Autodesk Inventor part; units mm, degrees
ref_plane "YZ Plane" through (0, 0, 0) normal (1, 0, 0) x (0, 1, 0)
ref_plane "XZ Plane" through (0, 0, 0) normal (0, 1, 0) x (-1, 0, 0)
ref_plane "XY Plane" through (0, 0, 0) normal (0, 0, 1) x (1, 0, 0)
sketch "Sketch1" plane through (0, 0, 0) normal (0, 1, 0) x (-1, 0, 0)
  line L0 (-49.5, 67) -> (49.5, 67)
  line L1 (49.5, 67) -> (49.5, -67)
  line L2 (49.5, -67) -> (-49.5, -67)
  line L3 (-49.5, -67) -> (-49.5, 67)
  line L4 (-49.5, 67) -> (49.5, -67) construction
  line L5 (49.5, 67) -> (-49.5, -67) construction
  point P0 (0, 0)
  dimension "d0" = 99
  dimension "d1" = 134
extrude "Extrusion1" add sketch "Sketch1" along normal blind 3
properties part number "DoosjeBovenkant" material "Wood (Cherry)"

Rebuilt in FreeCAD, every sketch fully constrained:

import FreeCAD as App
import Part
import Sketcher
from FreeCAD import Vector


def add_polygon(sketch, points):
    """Adds a closed chain of lines whose ends are joined by coincident constraints."""
    first, n = sketch.GeometryCount, len(points)
    for a, b in zip(points, points[1:] + points[:1]):
        sketch.addGeometry(Part.LineSegment(App.Vector(*a, 0), App.Vector(*b, 0)), False)
    for i in range(n):
        sketch.addConstraint(Sketcher.Constraint("Coincident", first + i, 2, first + (i + 1) % n, 1))

doc = App.newDocument("Part")
params = doc.addObject("Spreadsheet::Sheet", "Params")
for row, (alias, value) in enumerate([
    ("sketch1_width", "99 mm"),
    ("sketch1_height", "134 mm"),
    ("pad1_length", "3 mm"),
], start=1):
    params.set(f"A{row}", alias)
    params.set(f"B{row}", "=" + value)
    params.setAlias(f"B{row}", alias)

body = doc.addObject("PartDesign::Body", "Body")

# Sketch on XZ plane
sketch1 = body.newObject("Sketcher::SketchObject", "Sketch")
sketch1.AttachmentSupport = (doc.getObject("XZ_Plane"), [""])
sketch1.MapMode = "FlatFace"
add_polygon(sketch1, [(-50, 67), (50, 67), (50, -67), (-50, -67)])  # lines 0-3
sketch1.addConstraint([
    Sketcher.Constraint("Horizontal", 0),
    Sketcher.Constraint("Vertical", 1),
    Sketcher.Constraint("Horizontal", 2),
    Sketcher.Constraint("Vertical", 3),
    Sketcher.Constraint("Symmetric", 0, 2, 2, 2, -1, 1),
    Sketcher.Constraint("DistanceX", 0, 1, 0, 2, 99.0),
    Sketcher.Constraint("DistanceY", 1, 2, 1, 1, 134.0),
])
sketch1.setExpression("Constraints[9]", "Params.sketch1_width")
sketch1.setExpression("Constraints[10]", "Params.sketch1_height")
pad1 = body.newObject("PartDesign::Pad", "Pad")
pad1.Profile = sketch1
pad1.setExpression("Length", "Params.pad1_length")
pad1.Reversed = True

doc.recompute()
